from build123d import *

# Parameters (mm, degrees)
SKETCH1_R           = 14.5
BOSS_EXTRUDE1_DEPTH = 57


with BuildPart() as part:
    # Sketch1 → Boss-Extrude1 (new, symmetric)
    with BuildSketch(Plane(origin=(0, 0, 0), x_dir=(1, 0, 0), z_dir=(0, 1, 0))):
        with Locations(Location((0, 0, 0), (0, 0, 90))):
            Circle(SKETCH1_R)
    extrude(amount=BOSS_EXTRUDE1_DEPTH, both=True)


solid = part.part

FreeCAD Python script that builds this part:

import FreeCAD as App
import Part
import Sketcher
from FreeCAD import Vector
Q = App.Units.Quantity

doc = App.newDocument("Part")
body = doc.addObject("PartDesign::Body", "Body")

# Sketch on XZ plane
sketch1 = body.newObject("Sketcher::SketchObject", "Sketch")
sketch1.AttachmentSupport = (doc.getObject("XZ_Plane"), [""])
sketch1.MapMode = "FlatFace"
sketch1.addGeometry(Part.Circle(Vector(0, 0, 0), Vector(0, 0, 1), 14), False)
sketch1.addConstraint([
    Sketcher.Constraint("Coincident", 0, 3, -1, 1),
    Sketcher.Constraint("Diameter", 0, Q("29 mm")),
])
pad1 = body.newObject("PartDesign::Pad", "Pad")
pad1.Profile = sketch1
pad1.Length = 114
pad1.Midplane = True

doc.recompute()
